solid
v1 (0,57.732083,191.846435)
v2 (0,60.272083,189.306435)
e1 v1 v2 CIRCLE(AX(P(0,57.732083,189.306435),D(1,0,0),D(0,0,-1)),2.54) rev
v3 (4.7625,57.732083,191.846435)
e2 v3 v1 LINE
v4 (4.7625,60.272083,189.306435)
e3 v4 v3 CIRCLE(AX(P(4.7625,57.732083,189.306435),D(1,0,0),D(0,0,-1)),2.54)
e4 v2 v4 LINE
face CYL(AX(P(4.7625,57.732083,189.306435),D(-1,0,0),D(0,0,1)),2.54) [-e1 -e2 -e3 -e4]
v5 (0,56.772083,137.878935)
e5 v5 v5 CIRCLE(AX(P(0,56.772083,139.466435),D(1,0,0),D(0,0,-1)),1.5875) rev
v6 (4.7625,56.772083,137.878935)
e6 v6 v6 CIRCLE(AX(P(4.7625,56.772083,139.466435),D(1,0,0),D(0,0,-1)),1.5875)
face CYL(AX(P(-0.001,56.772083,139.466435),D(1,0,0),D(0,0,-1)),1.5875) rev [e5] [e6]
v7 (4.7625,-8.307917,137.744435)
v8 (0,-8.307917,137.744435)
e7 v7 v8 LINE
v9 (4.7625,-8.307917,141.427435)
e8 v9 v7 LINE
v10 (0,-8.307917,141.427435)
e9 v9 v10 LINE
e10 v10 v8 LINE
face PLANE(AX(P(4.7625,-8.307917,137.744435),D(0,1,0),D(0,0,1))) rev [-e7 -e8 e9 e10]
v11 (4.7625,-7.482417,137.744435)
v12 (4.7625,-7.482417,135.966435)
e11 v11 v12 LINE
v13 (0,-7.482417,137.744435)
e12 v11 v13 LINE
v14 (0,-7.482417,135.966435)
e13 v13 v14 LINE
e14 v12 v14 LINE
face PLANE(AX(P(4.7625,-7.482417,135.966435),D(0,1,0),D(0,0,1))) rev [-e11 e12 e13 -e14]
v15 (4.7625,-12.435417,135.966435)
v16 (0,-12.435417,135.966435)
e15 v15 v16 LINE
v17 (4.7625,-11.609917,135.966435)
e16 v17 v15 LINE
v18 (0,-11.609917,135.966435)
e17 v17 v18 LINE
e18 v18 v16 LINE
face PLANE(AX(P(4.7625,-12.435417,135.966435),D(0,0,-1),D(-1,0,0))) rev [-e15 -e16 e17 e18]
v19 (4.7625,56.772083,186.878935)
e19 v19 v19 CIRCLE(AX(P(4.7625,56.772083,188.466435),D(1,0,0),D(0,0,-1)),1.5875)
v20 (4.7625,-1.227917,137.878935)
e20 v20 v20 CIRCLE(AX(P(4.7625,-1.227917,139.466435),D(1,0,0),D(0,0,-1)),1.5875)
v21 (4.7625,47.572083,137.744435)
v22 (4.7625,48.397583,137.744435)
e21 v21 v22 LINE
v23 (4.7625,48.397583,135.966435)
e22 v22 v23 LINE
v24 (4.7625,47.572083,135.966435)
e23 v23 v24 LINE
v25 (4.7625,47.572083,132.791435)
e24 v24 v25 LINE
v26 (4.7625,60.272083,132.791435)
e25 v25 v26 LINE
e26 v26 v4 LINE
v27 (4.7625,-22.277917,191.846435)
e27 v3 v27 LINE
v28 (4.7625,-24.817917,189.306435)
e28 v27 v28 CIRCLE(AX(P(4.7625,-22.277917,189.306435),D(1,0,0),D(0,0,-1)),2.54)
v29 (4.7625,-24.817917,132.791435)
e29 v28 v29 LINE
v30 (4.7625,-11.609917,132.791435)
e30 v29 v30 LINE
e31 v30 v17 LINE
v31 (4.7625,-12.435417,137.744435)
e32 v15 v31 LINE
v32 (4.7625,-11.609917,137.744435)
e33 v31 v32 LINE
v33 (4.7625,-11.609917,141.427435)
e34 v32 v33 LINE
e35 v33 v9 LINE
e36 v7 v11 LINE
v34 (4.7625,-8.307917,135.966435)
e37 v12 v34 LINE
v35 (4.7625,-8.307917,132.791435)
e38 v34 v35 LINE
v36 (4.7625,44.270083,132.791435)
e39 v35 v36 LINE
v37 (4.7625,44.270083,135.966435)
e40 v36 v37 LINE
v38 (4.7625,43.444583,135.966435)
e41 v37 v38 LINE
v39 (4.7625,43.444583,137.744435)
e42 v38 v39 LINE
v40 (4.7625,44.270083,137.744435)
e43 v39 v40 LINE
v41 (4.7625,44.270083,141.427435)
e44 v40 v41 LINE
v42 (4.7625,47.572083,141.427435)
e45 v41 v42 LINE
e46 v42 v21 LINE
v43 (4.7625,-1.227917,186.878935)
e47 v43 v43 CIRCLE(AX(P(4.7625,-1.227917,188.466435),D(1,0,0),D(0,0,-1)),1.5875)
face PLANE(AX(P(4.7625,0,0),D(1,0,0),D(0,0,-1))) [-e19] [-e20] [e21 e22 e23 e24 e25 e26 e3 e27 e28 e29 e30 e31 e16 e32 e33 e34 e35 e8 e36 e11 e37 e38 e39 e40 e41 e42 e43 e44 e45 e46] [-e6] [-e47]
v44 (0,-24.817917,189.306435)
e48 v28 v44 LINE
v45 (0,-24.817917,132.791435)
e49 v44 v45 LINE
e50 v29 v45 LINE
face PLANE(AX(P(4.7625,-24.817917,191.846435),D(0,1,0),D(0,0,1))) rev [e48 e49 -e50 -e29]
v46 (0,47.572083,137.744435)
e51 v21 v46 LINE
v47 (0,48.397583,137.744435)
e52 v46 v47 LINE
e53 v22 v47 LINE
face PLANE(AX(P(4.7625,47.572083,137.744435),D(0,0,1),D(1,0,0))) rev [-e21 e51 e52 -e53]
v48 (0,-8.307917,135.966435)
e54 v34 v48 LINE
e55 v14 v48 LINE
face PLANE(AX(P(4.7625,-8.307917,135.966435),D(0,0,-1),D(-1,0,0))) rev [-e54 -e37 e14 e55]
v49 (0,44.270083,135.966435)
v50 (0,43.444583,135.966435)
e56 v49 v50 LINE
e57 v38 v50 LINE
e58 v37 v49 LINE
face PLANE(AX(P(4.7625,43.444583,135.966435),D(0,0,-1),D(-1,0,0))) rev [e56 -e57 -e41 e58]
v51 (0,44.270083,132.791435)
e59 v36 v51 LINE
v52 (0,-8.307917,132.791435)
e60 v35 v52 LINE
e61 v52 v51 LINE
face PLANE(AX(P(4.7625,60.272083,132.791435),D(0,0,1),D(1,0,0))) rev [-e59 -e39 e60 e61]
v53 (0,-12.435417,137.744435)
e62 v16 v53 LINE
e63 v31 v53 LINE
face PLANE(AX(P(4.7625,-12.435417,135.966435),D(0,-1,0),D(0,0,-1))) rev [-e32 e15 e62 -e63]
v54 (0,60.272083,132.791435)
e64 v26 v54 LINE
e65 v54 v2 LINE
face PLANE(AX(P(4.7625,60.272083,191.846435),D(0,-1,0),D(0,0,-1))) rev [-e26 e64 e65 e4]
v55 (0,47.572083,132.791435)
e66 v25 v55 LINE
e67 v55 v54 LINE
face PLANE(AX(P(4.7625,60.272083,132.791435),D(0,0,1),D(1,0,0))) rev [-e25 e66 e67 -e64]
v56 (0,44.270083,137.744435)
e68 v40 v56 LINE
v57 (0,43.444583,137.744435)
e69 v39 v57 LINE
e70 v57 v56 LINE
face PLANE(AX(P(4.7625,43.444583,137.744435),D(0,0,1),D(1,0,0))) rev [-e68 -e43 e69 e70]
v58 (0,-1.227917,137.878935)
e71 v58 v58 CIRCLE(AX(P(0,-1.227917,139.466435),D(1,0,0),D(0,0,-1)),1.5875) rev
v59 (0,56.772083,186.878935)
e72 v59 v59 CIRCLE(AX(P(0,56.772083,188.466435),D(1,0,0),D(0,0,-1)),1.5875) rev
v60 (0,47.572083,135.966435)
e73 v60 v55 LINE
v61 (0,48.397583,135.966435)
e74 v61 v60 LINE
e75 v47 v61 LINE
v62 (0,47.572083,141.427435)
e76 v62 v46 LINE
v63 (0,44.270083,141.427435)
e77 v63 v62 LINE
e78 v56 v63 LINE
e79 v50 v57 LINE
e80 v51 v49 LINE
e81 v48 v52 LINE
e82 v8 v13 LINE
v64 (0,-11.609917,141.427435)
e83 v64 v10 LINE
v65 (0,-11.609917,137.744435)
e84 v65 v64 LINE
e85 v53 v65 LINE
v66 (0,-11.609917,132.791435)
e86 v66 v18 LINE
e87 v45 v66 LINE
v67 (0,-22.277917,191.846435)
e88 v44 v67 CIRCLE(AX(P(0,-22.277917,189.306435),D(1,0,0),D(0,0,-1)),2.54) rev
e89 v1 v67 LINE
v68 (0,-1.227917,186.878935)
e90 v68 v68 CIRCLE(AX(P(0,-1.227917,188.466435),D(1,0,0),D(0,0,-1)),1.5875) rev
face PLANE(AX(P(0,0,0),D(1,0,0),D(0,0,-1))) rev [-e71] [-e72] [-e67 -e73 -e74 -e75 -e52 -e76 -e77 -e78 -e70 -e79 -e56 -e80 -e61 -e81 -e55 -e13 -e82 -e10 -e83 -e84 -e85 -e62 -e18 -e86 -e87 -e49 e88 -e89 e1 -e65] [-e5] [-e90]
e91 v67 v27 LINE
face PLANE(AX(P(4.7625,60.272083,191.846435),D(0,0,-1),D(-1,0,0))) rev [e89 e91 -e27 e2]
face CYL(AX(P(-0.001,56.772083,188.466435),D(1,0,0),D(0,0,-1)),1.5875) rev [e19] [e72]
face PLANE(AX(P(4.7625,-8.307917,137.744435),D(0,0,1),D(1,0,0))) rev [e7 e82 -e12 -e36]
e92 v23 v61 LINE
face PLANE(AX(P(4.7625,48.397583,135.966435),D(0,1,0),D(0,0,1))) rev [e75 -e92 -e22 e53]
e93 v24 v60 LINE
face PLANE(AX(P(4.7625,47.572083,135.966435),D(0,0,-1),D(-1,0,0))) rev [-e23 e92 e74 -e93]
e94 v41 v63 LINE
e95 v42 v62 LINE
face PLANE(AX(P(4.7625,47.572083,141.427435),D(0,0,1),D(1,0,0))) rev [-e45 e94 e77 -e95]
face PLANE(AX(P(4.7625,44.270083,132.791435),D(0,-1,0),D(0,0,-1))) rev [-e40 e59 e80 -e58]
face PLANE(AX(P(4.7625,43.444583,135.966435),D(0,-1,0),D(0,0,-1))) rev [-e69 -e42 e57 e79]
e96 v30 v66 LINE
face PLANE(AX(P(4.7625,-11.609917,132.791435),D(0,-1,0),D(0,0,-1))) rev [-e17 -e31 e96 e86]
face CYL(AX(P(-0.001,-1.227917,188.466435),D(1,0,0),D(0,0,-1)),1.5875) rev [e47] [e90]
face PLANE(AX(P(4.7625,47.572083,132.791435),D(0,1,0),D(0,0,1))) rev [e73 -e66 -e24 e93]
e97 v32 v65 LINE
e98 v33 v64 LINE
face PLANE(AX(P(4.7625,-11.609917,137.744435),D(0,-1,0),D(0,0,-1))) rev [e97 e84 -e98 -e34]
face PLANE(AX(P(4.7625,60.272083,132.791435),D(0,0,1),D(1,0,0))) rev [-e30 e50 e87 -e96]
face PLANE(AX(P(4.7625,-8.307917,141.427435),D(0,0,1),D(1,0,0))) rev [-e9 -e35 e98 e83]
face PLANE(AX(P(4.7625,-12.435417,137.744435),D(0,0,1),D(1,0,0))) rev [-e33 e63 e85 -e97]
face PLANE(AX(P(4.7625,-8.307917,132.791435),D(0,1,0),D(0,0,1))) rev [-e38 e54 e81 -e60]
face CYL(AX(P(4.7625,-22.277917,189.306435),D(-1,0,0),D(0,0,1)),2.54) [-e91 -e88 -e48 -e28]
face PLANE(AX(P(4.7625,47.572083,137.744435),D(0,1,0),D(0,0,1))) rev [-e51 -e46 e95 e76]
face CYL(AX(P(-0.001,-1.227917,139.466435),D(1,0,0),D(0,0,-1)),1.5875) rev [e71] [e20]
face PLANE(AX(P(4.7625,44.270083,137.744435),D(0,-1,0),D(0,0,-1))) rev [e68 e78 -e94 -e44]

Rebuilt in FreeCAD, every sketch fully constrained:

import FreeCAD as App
import Part
import Sketcher

V = App.Vector
Q = App.Units.Quantity


def edges_at(feature, points):
    """Names of the edges that pass closest to the given points."""
    edges = feature.Shape.Edges
    near = lambda p: min(range(len(edges)), key=lambda i: edges[i].distToShape(Part.Vertex(*p))[0])
    return sorted({f"Edge{near(p) + 1}" for p in points})


def add_polygon(sketch, points):
    """Adds a closed chain of lines whose ends are joined by coincident constraints."""
    first, n = sketch.GeometryCount, len(points)
    for a, b in zip(points, points[1:] + points[:1]):
        sketch.addGeometry(Part.LineSegment(App.Vector(*a, 0), App.Vector(*b, 0)), False)
    for i in range(n):
        sketch.addConstraint(Sketcher.Constraint("Coincident", first + i, 2, first + (i + 1) % n, 1))

doc = App.newDocument("Part")
body = doc.addObject("PartDesign::Body", "Body")

sketch1 = doc.addObject("Sketcher::SketchObject", "Sketch")
body.addObject(sketch1)
sketch1.AttachmentSupport = (doc.YZ_Plane, [""])
sketch1.MapMode = "FlatFace"
add_polygon(sketch1, [(60, 192), (-25, 192), (-25, 133), (60, 133)])
sketch1.addConstraint([
    Sketcher.Constraint("Horizontal", 0),
    Sketcher.Constraint("Vertical", 1),
    Sketcher.Constraint("Horizontal", 2),
    Sketcher.Constraint("Vertical", 3),
    Sketcher.Constraint("DistanceX", 0, 2, 0, 1, Q("3.35 in")),
    Sketcher.Constraint("DistanceY", 1, 2, 1, 1, Q("2.325 in")),
    Sketcher.Constraint("DistanceX", 0, 2, -1, 1, 24.817917),
    Sketcher.Constraint("DistanceY", -1, 1, 0, 2, 191.846435),
])
pad1 = doc.addObject("PartDesign::Pad", "Pad")
body.addObject(pad1)
pad1.Profile = sketch1
pad1.Length = Q("0.1875 in")

sketch2 = doc.addObject("Sketcher::SketchObject", "Sketch001")
body.addObject(sketch2)
sketch2.AttachmentSupport = (doc.YZ_Plane, [""])
sketch2.MapMode = "FlatFace"
sketch2.AttachmentOffset = App.Placement(V(0, 0, 0.1875 * 25.4), App.Rotation())
sketch2.addGeometry(Part.Circle(V(-1.2, 188.5, 0), V(0, 0, 1), 1.6), False)
sketch2.addConstraint([
    Sketcher.Constraint("Diameter", 0, Q("0.125 in")),
    Sketcher.Constraint("DistanceX", 0, 3, -1, 1, 1.227917),
    Sketcher.Constraint("DistanceY", -1, 1, 0, 3, 188.466435),
])
pocket1 = doc.addObject("PartDesign::Pocket", "Pocket")
body.addObject(pocket1)
pocket1.Profile = sketch2
pocket1.Type = "UpToFirst"

sketch3 = doc.addObject("Sketcher::SketchObject", "Sketch002")
body.addObject(sketch3)
sketch3.AttachmentSupport = (doc.YZ_Plane, [""])
sketch3.MapMode = "FlatFace"
sketch3.AttachmentOffset = App.Placement(V(0, 0, 0.1875 * 25.4), App.Rotation())
sketch3.addGeometry(Part.Circle(V(-1.2, 139.5, 0), V(0, 0, 1), 1.6), False)
sketch3.addConstraint([
    Sketcher.Constraint("Diameter", 0, Q("0.125 in")),
    Sketcher.Constraint("DistanceX", 0, 3, -1, 1, 1.227917),
    Sketcher.Constraint("DistanceY", -1, 1, 0, 3, 139.466435),
])
pocket2 = doc.addObject("PartDesign::Pocket", "Pocket001")
body.addObject(pocket2)
pocket2.Profile = sketch3
pocket2.Type = "UpToFirst"

sketch4 = doc.addObject("Sketcher::SketchObject", "Sketch003")
body.addObject(sketch4)
sketch4.AttachmentSupport = (doc.YZ_Plane, [""])
sketch4.MapMode = "FlatFace"
sketch4.AttachmentOffset = App.Placement(V(0, 0, 0.1875 * 25.4), App.Rotation())
sketch4.addGeometry(Part.Circle(V(56.8, 139.5, 0), V(0, 0, 1), 1.6), False)
sketch4.addConstraint([
    Sketcher.Constraint("Diameter", 0, Q("0.125 in")),
    Sketcher.Constraint("DistanceX", -1, 1, 0, 3, 56.772083),
    Sketcher.Constraint("DistanceY", -1, 1, 0, 3, 139.466435),
])
pocket3 = doc.addObject("PartDesign::Pocket", "Pocket002")
body.addObject(pocket3)
pocket3.Profile = sketch4
pocket3.Type = "UpToFirst"

sketch5 = doc.addObject("Sketcher::SketchObject", "Sketch004")
body.addObject(sketch5)
sketch5.AttachmentSupport = (doc.YZ_Plane, [""])
sketch5.MapMode = "FlatFace"
sketch5.AttachmentOffset = App.Placement(V(0, 0, 0.1875 * 25.4), App.Rotation())
sketch5.addGeometry(Part.Circle(V(56.8, 188.5, 0), V(0, 0, 1), 1.6), False)
sketch5.addConstraint([
    Sketcher.Constraint("Diameter", 0, Q("0.125 in")),
    Sketcher.Constraint("DistanceX", -1, 1, 0, 3, 56.772083),
    Sketcher.Constraint("DistanceY", -1, 1, 0, 3, 188.466435),
])
pocket4 = doc.addObject("PartDesign::Pocket", "Pocket003")
body.addObject(pocket4)
pocket4.Profile = sketch5
pocket4.Type = "UpToFirst"

sketch6 = doc.addObject("Sketcher::SketchObject", "Sketch005")
body.addObject(sketch6)
sketch6.AttachmentSupport = (doc.YZ_Plane, [""])
sketch6.MapMode = "FlatFace"
add_polygon(sketch6, [(47.6, 136), (47.6, 132.8), (44.3, 132.8), (44.3, 136), (43.4, 136), (43.4, 137.7), (44.3, 137.7), (44.3, 141.4), (47.6, 141.4), (47.6, 137.7), (48.4, 137.7), (48.4, 136)])
add_polygon(sketch6, [(-8.3, 136), (-8.3, 132.8), (-11.6, 132.8), (-11.6, 136), (-12.4, 136), (-12.4, 137.7), (-11.6, 137.7), (-11.6, 141.4), (-8.3, 141.4), (-8.3, 137.7), (-7.5, 137.7), (-7.5, 136)])
sketch6.addConstraint([
    Sketcher.Constraint("Vertical", 0),
    Sketcher.Constraint("Horizontal", 1),
    Sketcher.Constraint("Vertical", 2),
    Sketcher.Constraint("Horizontal", 3),
    Sketcher.Constraint("Vertical", 4),
    Sketcher.Constraint("Horizontal", 5),
    Sketcher.Constraint("Vertical", 6),
    Sketcher.Constraint("Horizontal", 7),
    Sketcher.Constraint("Vertical", 8),
    Sketcher.Constraint("Horizontal", 9),
    Sketcher.Constraint("Vertical", 10),
    Sketcher.Constraint("Horizontal", 11),
    Sketcher.Constraint("Vertical", 12),
    Sketcher.Constraint("Horizontal", 13),
    Sketcher.Constraint("Vertical", 14),
    Sketcher.Constraint("Horizontal", 15),
    Sketcher.Constraint("Vertical", 16),
    Sketcher.Constraint("Horizontal", 17),
    Sketcher.Constraint("Vertical", 18),
    Sketcher.Constraint("Horizontal", 19),
    Sketcher.Constraint("Vertical", 20),
    Sketcher.Constraint("Horizontal", 21),
    Sketcher.Constraint("Vertical", 22),
    Sketcher.Constraint("Horizontal", 23),
    Sketcher.Constraint("Horizontal", 5, 2, 8, 2),
    Sketcher.Constraint("Horizontal", 3, 2, 10, 2),
    Sketcher.Constraint("Horizontal", 1, 2, 12, 2),
    Sketcher.Constraint("Horizontal", 11, 2, 14, 2),
    Sketcher.Constraint("Horizontal", 9, 2, 16, 2),
    Sketcher.Constraint("Horizontal", 7, 2, 18, 2),
    Sketcher.Constraint("Horizontal", 17, 2, 20, 2),
    Sketcher.Constraint("Horizontal", 15, 2, 22, 2),
    Sketcher.Constraint("Vertical", 2, 2, 5, 2),
    Sketcher.Constraint("Vertical", 0, 2, 7, 2),
    Sketcher.Constraint("Vertical", 14, 2, 17, 2),
    Sketcher.Constraint("Vertical", 12, 2, 19, 2),
    Sketcher.Constraint("Equal", 5, 9),
    Sketcher.Constraint("Equal", 7, 13),
    Sketcher.Constraint("Equal", 11, 15),
    Sketcher.Constraint("Equal", 17, 21),
    Sketcher.Constraint("DistanceX", 1, 2, 1, 1, Q("0.13 in")),
    Sketcher.Constraint("DistanceY", 4, 1, 4, 2, Q("0.07 in")),
    Sketcher.Constraint("DistanceX", 13, 2, 1, 2, Q("2.2 in")),
    Sketcher.Constraint("DistanceY", 0, 2, 0, 1, Q("0.125 in")),
    Sketcher.Constraint("DistanceY", 6, 1, 6, 2, Q("0.145 in")),
    Sketcher.Constraint("DistanceX", 3, 2, 3, 1, Q("0.0325 in")),
    Sketcher.Constraint("DistanceX", -1, 1, 0, 2, 47.572083),
    Sketcher.Constraint("DistanceY", -1, 1, 0, 2, 132.791435),
])
pocket5 = doc.addObject("PartDesign::Pocket", "Pocket004")
body.addObject(pocket5)
pocket5.Profile = sketch6
pocket5.Type = "ThroughAll"
pocket5.Reversed = True
doc.recompute()

fillet = doc.addObject("PartDesign::Fillet", "Fillet")
body.addObject(fillet)
fillet.Base = (pocket5, edges_at(pocket5, [(2.381, -24.818, 191.846), (2.381, 60.272, 191.846)]))
fillet.Radius = Q("0.1 in")

doc.recompute()
